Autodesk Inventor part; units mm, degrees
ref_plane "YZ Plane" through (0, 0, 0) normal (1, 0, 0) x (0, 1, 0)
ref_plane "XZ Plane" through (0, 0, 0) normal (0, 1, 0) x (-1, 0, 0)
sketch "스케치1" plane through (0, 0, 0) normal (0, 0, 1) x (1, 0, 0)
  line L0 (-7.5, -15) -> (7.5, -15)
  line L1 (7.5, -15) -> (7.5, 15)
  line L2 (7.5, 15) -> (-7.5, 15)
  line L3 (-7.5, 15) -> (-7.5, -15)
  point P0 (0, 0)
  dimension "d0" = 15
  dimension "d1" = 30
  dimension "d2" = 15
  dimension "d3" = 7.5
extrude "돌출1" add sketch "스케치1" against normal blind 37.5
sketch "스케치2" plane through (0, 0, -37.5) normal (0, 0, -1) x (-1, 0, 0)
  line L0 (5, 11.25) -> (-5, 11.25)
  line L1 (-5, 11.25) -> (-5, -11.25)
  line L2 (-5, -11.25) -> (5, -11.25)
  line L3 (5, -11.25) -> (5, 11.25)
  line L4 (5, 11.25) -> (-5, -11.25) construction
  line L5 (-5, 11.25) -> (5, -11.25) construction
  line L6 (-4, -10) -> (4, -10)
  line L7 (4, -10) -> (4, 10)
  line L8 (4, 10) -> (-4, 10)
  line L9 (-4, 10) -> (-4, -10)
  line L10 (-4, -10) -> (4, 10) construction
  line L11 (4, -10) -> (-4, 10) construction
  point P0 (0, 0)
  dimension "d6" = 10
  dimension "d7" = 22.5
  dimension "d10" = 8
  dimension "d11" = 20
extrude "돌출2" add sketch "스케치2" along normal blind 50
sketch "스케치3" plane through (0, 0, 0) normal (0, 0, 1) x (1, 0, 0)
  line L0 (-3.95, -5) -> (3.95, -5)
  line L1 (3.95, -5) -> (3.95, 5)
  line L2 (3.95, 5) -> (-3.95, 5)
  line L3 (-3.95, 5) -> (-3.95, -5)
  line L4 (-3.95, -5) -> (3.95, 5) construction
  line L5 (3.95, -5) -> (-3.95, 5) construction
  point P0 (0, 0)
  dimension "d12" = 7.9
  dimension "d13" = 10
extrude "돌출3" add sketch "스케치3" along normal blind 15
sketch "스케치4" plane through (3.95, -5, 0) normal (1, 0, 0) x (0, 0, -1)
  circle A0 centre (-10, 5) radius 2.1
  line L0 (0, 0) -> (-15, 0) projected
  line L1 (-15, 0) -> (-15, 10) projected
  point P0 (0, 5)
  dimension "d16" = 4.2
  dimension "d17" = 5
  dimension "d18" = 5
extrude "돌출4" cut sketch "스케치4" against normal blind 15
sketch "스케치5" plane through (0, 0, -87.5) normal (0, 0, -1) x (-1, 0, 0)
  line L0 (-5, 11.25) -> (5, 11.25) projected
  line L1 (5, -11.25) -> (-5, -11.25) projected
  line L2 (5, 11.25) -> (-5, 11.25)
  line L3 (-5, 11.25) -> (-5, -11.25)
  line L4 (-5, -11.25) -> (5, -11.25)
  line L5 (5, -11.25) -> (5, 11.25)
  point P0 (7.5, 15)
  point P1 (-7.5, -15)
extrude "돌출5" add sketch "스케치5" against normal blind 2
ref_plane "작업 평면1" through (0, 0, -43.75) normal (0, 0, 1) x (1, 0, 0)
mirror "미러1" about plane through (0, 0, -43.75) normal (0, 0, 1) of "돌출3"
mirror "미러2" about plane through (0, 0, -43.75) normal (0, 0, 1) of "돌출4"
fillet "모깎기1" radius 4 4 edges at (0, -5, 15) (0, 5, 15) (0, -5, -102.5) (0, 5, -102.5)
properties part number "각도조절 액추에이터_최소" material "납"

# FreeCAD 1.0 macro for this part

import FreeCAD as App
import Part
import Sketcher
from FreeCAD import Vector


def edges_at(feature, points):
    """Names of the edges that pass closest to the given points."""
    edges = feature.Shape.Edges
    near = lambda p: min(range(len(edges)), key=lambda i: edges[i].distToShape(Part.Vertex(*p))[0])
    return sorted({f"Edge{near(p) + 1}" for p in points})

doc = App.newDocument("Part")
body = doc.addObject("PartDesign::Body", "Body")

sketch1 = body.newObject("Sketcher::SketchObject", "Sketch")
sketch1.AttachmentSupport = (doc.getObject("XY_Plane"), [""])
sketch1.MapMode = "FlatFace"
sketch1.addGeometry(Part.LineSegment(Vector(-8, 15, 0), Vector(-8, -15, 0)), False)
sketch1.addGeometry(Part.LineSegment(Vector(-8, -15, 0), Vector(8, -15, 0)), False)
sketch1.addGeometry(Part.LineSegment(Vector(8, -15, 0), Vector(8, 15, 0)), False)
sketch1.addGeometry(Part.LineSegment(Vector(8, 15, 0), Vector(-8, 15, 0)), False)
sketch1.addConstraint(Sketcher.Constraint("Coincident", 0, 2, 1, 1))
sketch1.addConstraint(Sketcher.Constraint("Coincident", 1, 2, 2, 1))
sketch1.addConstraint(Sketcher.Constraint("Coincident", 2, 2, 3, 1))
sketch1.addConstraint(Sketcher.Constraint("Coincident", 3, 2, 0, 1))
sketch1.addConstraint(Sketcher.Constraint("Vertical", 0))
sketch1.addConstraint(Sketcher.Constraint("Horizontal", 1))
sketch1.addConstraint(Sketcher.Constraint("Vertical", 2))
sketch1.addConstraint(Sketcher.Constraint("Horizontal", 3))
sketch1.addConstraint(Sketcher.Constraint("Symmetric", 0, 2, 2, 2, -1, 1))
sketch1.addConstraint(Sketcher.Constraint("DistanceX", 1, 1, 1, 2, 15.0))
sketch1.addConstraint(Sketcher.Constraint("DistanceY", 0, 2, 0, 1, 30.0))
pad1 = body.newObject("PartDesign::Pad", "Pad")
pad1.Profile = sketch1
pad1.Length = 37.5
pad1.Reversed = True

sketch2 = body.newObject("Sketcher::SketchObject", "Sketch001")
sketch2.AttachmentSupport = (doc.getObject("XY_Plane"), [""])
sketch2.MapMode = "FlatFace"
sketch2.AttachmentOffset = App.Placement(Vector(0, 0, -37.5), App.Rotation())
sketch2.addGeometry(Part.LineSegment(Vector(-5, -11, 0), Vector(-5, 11, 0)), False)
sketch2.addGeometry(Part.LineSegment(Vector(-5, 11, 0), Vector(5, 11, 0)), False)
sketch2.addGeometry(Part.LineSegment(Vector(5, 11, 0), Vector(5, -11, 0)), False)
sketch2.addGeometry(Part.LineSegment(Vector(5, -11, 0), Vector(-5, -11, 0)), False)
sketch2.addGeometry(Part.LineSegment(Vector(-4, -10, 0), Vector(4, -10, 0)), False)
sketch2.addGeometry(Part.LineSegment(Vector(4, -10, 0), Vector(4, 10, 0)), False)
sketch2.addGeometry(Part.LineSegment(Vector(4, 10, 0), Vector(-4, 10, 0)), False)
sketch2.addGeometry(Part.LineSegment(Vector(-4, 10, 0), Vector(-4, -10, 0)), False)
sketch2.addConstraint(Sketcher.Constraint("Coincident", 0, 2, 1, 1))
sketch2.addConstraint(Sketcher.Constraint("Coincident", 1, 2, 2, 1))
sketch2.addConstraint(Sketcher.Constraint("Coincident", 2, 2, 3, 1))
sketch2.addConstraint(Sketcher.Constraint("Coincident", 3, 2, 0, 1))
sketch2.addConstraint(Sketcher.Constraint("Coincident", 4, 2, 5, 1))
sketch2.addConstraint(Sketcher.Constraint("Coincident", 5, 2, 6, 1))
sketch2.addConstraint(Sketcher.Constraint("Coincident", 6, 2, 7, 1))
sketch2.addConstraint(Sketcher.Constraint("Coincident", 7, 2, 4, 1))
sketch2.addConstraint(Sketcher.Constraint("Vertical", 0))
sketch2.addConstraint(Sketcher.Constraint("Horizontal", 1))
sketch2.addConstraint(Sketcher.Constraint("Vertical", 2))
sketch2.addConstraint(Sketcher.Constraint("Horizontal", 3))
sketch2.addConstraint(Sketcher.Constraint("Horizontal", 4))
sketch2.addConstraint(Sketcher.Constraint("Vertical", 5))
sketch2.addConstraint(Sketcher.Constraint("Horizontal", 6))
sketch2.addConstraint(Sketcher.Constraint("Vertical", 7))
sketch2.addConstraint(Sketcher.Constraint("Symmetric", 0, 2, 2, 2, -1, 1))
sketch2.addConstraint(Sketcher.Constraint("Symmetric", 4, 2, 6, 2, -1, 1))
sketch2.addConstraint(Sketcher.Constraint("DistanceX", 1, 1, 1, 2, 10.0))
sketch2.addConstraint(Sketcher.Constraint("DistanceX", 4, 1, 4, 2, 8.0))
sketch2.addConstraint(Sketcher.Constraint("DistanceY", 5, 1, 5, 2, 20.0))
sketch2.addConstraint(Sketcher.Constraint("DistanceY", 0, 1, 0, 2, 22.5))
pad2 = body.newObject("PartDesign::Pad", "Pad001")
pad2.Profile = sketch2
pad2.Length = 50
pad2.Reversed = True

sketch3 = body.newObject("Sketcher::SketchObject", "Sketch002")
sketch3.AttachmentSupport = (doc.getObject("XY_Plane"), [""])
sketch3.MapMode = "FlatFace"
sketch3.addGeometry(Part.LineSegment(Vector(-4, 5, 0), Vector(-4, -5, 0)), False)
sketch3.addGeometry(Part.LineSegment(Vector(-4, -5, 0), Vector(4, -5, 0)), False)
sketch3.addGeometry(Part.LineSegment(Vector(4, -5, 0), Vector(4, 5, 0)), False)
sketch3.addGeometry(Part.LineSegment(Vector(4, 5, 0), Vector(-4, 5, 0)), False)
sketch3.addConstraint(Sketcher.Constraint("Coincident", 0, 2, 1, 1))
sketch3.addConstraint(Sketcher.Constraint("Coincident", 1, 2, 2, 1))
sketch3.addConstraint(Sketcher.Constraint("Coincident", 2, 2, 3, 1))
sketch3.addConstraint(Sketcher.Constraint("Coincident", 3, 2, 0, 1))
sketch3.addConstraint(Sketcher.Constraint("Vertical", 0))
sketch3.addConstraint(Sketcher.Constraint("Horizontal", 1))
sketch3.addConstraint(Sketcher.Constraint("Vertical", 2))
sketch3.addConstraint(Sketcher.Constraint("Horizontal", 3))
sketch3.addConstraint(Sketcher.Constraint("Symmetric", 0, 2, 2, 2, -1, 1))
sketch3.addConstraint(Sketcher.Constraint("DistanceY", 0, 2, 0, 1, 10.0))
sketch3.addConstraint(Sketcher.Constraint("DistanceX", 1, 1, 1, 2, 7.9))
pad3 = body.newObject("PartDesign::Pad", "Pad002")
pad3.Profile = sketch3
pad3.Length = 15

sketch4 = body.newObject("Sketcher::SketchObject", "Sketch003")
sketch4.AttachmentSupport = (doc.getObject("YZ_Plane"), [""])
sketch4.MapMode = "FlatFace"
sketch4.AttachmentOffset = App.Placement(Vector(0, 0, 3.95), App.Rotation())
sketch4.addGeometry(Part.Circle(Vector(0, 10, 0), Vector(0, 0, 1), 2.1), False)
sketch4.addConstraint(Sketcher.Constraint("PointOnObject", 0, 3, -2))
sketch4.addConstraint(Sketcher.Constraint("Diameter", 0, 4.2))
sketch4.addConstraint(Sketcher.Constraint("DistanceY", -1, 1, 0, 3, 10.0))
pocket1 = body.newObject("PartDesign::Pocket", "Pocket")
pocket1.Profile = sketch4
pocket1.Length = 15

sketch5 = body.newObject("Sketcher::SketchObject", "Sketch004")
sketch5.AttachmentSupport = (doc.getObject("XY_Plane"), [""])
sketch5.MapMode = "FlatFace"
sketch5.AttachmentOffset = App.Placement(Vector(0, 0, -87.5), App.Rotation())
sketch5.addGeometry(Part.LineSegment(Vector(-5, 11, 0), Vector(5, 11, 0)), False)
sketch5.addGeometry(Part.LineSegment(Vector(5, 11, 0), Vector(5, -11, 0)), False)
sketch5.addGeometry(Part.LineSegment(Vector(5, -11, 0), Vector(-5, -11, 0)), False)
sketch5.addGeometry(Part.LineSegment(Vector(-5, -11, 0), Vector(-5, 11, 0)), False)
sketch5.addConstraint(Sketcher.Constraint("Coincident", 0, 2, 1, 1))
sketch5.addConstraint(Sketcher.Constraint("Coincident", 1, 2, 2, 1))
sketch5.addConstraint(Sketcher.Constraint("Coincident", 2, 2, 3, 1))
sketch5.addConstraint(Sketcher.Constraint("Coincident", 3, 2, 0, 1))
sketch5.addConstraint(Sketcher.Constraint("Horizontal", 0))
sketch5.addConstraint(Sketcher.Constraint("Vertical", 1))
sketch5.addConstraint(Sketcher.Constraint("Horizontal", 2))
sketch5.addConstraint(Sketcher.Constraint("Vertical", 3))
sketch5.addConstraint(Sketcher.Constraint("Symmetric", 0, 2, 2, 2, -1, 1))
sketch5.addConstraint(Sketcher.Constraint("DistanceX", 0, 1, 0, 2, 10.0))
sketch5.addConstraint(Sketcher.Constraint("DistanceY", 1, 2, 1, 1, 22.5))
pad4 = body.newObject("PartDesign::Pad", "Pad003")
pad4.Profile = sketch5
pad4.Length = 2
doc.recompute()

datumplane = body.newObject("PartDesign::Plane", "DatumPlane")
datumplane.AttachmentSupport = (doc.getObject("XY_Plane"), [""])
datumplane.MapMode = "FlatFace"
datumplane.AttachmentOffset = App.Placement(Vector(0, 0, -43.75), App.Rotation())
mirrored = body.newObject("PartDesign::Mirrored", "Mirrored")
mirrored.Originals = [pad3]
mirrored.MirrorPlane = (datumplane, [""])
body.Tip = mirrored
doc.recompute()

datumplane2 = body.newObject("PartDesign::Plane", "DatumPlane001")
datumplane2.AttachmentSupport = (doc.getObject("XY_Plane"), [""])
datumplane2.MapMode = "FlatFace"
datumplane2.AttachmentOffset = App.Placement(Vector(0, 0, -43.75), App.Rotation())
mirrored2 = body.newObject("PartDesign::Mirrored", "Mirrored001")
mirrored2.Originals = [pocket1]
mirrored2.MirrorPlane = (datumplane2, [""])
body.Tip = mirrored2
doc.recompute()

fillet = body.newObject("PartDesign::Fillet", "Fillet")
fillet.Base = (mirrored2, edges_at(mirrored2, [
    (0, -5, 15),
    (0, 5, 15),
    (0, -5, -102.5),
    (0, 5, -102.5),
]))
fillet.Radius = 4

doc.recompute()
